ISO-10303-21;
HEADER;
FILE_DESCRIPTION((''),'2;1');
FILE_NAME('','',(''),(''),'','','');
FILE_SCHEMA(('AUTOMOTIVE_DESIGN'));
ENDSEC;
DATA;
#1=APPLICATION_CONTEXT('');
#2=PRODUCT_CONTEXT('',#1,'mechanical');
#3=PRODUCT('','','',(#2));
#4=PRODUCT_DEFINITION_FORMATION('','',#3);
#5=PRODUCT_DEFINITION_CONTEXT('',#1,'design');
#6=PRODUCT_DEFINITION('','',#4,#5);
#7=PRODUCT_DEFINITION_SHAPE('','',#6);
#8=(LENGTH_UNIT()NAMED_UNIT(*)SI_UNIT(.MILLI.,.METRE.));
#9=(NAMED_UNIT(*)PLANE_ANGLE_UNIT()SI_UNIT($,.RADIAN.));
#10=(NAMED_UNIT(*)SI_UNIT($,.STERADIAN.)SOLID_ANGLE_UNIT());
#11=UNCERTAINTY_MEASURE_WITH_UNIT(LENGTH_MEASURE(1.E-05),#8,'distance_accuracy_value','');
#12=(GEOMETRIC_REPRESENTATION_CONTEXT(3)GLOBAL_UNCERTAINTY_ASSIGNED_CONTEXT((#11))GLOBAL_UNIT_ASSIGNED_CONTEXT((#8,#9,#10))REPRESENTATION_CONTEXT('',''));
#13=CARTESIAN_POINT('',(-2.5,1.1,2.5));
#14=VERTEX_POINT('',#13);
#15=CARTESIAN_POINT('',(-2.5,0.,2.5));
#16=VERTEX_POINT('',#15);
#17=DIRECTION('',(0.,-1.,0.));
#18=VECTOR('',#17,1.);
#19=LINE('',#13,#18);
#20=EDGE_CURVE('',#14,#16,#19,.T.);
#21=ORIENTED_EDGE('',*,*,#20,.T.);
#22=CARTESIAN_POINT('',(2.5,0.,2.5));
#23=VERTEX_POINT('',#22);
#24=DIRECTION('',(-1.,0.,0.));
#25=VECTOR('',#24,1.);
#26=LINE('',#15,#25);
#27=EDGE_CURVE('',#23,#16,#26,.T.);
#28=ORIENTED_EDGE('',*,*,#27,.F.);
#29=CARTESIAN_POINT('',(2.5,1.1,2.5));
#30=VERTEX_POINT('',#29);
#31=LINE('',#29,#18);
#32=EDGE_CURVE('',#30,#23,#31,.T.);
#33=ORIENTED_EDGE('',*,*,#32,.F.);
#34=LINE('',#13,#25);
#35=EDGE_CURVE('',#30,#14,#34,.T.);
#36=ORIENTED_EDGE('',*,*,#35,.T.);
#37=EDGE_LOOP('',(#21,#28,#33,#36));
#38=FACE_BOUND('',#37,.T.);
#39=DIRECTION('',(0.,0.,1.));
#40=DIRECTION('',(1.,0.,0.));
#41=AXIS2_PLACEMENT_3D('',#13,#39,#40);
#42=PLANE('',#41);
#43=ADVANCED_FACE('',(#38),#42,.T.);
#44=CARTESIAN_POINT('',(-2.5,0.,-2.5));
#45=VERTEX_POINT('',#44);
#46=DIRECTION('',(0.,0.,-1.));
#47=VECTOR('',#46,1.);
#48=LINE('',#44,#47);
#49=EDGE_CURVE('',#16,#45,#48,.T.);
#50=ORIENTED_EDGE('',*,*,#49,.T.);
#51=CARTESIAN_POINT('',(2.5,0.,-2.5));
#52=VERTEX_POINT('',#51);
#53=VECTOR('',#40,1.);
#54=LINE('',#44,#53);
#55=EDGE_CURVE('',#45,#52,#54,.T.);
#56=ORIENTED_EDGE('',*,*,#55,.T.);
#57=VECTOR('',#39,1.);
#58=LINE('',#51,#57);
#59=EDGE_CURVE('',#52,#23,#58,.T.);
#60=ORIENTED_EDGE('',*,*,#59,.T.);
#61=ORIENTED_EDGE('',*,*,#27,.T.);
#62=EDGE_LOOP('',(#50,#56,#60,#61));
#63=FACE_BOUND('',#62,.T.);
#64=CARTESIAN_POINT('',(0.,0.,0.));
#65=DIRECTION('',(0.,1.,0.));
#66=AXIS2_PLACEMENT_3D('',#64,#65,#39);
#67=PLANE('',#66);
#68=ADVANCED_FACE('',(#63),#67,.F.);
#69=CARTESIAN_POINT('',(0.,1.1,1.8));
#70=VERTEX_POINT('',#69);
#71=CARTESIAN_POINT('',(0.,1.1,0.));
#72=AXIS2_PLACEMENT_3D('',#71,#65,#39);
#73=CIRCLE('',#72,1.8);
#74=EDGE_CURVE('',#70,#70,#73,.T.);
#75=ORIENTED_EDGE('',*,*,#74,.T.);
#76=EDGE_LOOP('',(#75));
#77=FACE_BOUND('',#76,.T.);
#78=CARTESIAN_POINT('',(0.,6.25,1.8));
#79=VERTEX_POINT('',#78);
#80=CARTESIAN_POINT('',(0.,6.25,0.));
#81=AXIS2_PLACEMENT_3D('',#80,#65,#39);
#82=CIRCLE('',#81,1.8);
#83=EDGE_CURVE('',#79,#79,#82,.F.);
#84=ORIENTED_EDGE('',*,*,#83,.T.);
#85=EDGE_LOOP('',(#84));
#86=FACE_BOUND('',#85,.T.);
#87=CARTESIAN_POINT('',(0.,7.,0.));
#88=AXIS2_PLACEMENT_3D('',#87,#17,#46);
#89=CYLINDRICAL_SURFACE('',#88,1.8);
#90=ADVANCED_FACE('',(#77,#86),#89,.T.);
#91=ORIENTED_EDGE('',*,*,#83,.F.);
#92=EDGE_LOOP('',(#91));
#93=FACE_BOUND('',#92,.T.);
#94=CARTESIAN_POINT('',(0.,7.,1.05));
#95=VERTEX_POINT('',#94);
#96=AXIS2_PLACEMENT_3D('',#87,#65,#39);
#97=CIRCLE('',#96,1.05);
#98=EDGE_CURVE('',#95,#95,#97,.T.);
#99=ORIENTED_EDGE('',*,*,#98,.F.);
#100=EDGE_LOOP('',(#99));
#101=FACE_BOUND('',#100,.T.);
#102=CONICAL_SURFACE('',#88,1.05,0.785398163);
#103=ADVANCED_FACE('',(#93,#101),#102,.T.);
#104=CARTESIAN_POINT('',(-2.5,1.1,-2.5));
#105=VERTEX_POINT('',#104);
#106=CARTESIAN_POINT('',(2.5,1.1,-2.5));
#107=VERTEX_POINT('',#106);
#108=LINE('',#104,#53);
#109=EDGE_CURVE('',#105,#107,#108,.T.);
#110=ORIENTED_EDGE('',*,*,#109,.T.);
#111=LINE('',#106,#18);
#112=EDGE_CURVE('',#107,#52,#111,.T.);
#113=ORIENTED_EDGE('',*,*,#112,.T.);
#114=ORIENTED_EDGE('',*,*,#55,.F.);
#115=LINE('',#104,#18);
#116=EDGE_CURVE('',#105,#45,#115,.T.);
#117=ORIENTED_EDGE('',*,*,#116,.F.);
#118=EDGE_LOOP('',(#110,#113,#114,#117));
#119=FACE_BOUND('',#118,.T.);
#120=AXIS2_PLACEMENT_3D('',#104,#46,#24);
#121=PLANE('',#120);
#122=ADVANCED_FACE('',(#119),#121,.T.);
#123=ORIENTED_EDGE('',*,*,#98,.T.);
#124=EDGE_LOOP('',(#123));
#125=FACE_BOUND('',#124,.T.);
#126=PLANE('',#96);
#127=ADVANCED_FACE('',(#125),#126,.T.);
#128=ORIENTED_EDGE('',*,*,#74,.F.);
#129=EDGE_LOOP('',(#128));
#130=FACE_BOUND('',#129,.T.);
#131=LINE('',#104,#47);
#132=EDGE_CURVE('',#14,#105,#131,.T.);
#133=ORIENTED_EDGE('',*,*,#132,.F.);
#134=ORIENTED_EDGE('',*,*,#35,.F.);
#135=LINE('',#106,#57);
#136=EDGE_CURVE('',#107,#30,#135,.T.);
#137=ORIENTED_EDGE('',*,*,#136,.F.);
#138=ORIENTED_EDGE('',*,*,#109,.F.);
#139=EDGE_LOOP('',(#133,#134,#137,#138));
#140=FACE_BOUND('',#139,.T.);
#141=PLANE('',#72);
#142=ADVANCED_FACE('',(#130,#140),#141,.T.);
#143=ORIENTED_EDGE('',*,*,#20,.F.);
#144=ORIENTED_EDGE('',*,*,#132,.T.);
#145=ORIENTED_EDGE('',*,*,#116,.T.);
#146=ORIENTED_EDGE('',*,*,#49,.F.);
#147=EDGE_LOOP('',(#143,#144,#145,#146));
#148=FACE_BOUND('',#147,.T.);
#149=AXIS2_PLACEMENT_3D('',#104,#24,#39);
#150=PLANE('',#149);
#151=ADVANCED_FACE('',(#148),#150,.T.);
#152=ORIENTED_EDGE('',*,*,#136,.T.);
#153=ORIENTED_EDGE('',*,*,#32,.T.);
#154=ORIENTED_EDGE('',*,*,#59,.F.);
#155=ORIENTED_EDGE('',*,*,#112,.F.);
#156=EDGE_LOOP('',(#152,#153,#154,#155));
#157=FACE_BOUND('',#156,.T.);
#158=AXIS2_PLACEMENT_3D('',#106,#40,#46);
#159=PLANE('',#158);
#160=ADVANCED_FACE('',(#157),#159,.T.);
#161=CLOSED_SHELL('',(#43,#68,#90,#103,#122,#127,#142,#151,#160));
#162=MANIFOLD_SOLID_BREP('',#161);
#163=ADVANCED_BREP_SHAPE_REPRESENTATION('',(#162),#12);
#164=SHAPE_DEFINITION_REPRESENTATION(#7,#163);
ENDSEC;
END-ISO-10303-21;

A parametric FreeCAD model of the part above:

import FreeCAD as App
import Part
import Sketcher


def edges_at(feature, points):
    """Names of the edges that pass closest to the given points."""
    edges = feature.Shape.Edges
    near = lambda p: min(range(len(edges)), key=lambda i: edges[i].distToShape(Part.Vertex(*p))[0])
    return sorted({f"Edge{near(p) + 1}" for p in points})


def add_polygon(sketch, points):
    """Adds a closed chain of lines whose ends are joined by coincident constraints."""
    first, n = sketch.GeometryCount, len(points)
    for a, b in zip(points, points[1:] + points[:1]):
        sketch.addGeometry(Part.LineSegment(App.Vector(*a, 0), App.Vector(*b, 0)), False)
    for i in range(n):
        sketch.addConstraint(Sketcher.Constraint("Coincident", first + i, 2, first + (i + 1) % n, 1))

doc = App.newDocument("Part")
body = doc.addObject("PartDesign::Body", "Body")

# Sketch on XZ plane
sketch1 = doc.addObject("Sketcher::SketchObject", "Sketch")
body.addObject(sketch1)
sketch1.AttachmentSupport = (doc.XZ_Plane, [""])
sketch1.MapMode = "FlatFace"
sketch1.addGeometry(Part.Circle(App.Vector(0, 0, 0), App.Vector(0, 0, 1), 1.8), False)
sketch1.addConstraint([
    Sketcher.Constraint("Coincident", 0, 3, -1, 1),
    Sketcher.Constraint("Diameter", 0, 3.6),
])
pad1 = doc.addObject("PartDesign::Pad", "Pad")
body.addObject(pad1)
pad1.Profile = sketch1
pad1.Length = 7
pad1.Reversed = True

# Sketch on XZ plane
sketch2 = doc.addObject("Sketcher::SketchObject", "Sketch001")
body.addObject(sketch2)
sketch2.AttachmentSupport = (doc.XZ_Plane, [""])
sketch2.MapMode = "FlatFace"
add_polygon(sketch2, [(-2, 2), (-2, -2), (2, -2), (2, 2)])  # lines 0-3
sketch2.addConstraint([
    Sketcher.Constraint("Vertical", 0),
    Sketcher.Constraint("Horizontal", 1),
    Sketcher.Constraint("Vertical", 2),
    Sketcher.Constraint("Horizontal", 3),
    Sketcher.Constraint("Symmetric", 0, 2, 2, 2, -1, 1),
    Sketcher.Constraint("Equal", 3, 0),
    Sketcher.Constraint("DistanceX", 1, 1, 1, 2, 5.0),
])
pad2 = doc.addObject("PartDesign::Pad", "Pad001")
body.addObject(pad2)
pad2.Profile = sketch2
pad2.Length = 1.1
pad2.Reversed = True
doc.recompute()

chamfer = doc.addObject("PartDesign::Chamfer", "Chamfer")
body.addObject(chamfer)
chamfer.Base = (pad2, edges_at(pad2, [(0, 7, -1.8)]))
chamfer.Size = 0.75

doc.recompute()
